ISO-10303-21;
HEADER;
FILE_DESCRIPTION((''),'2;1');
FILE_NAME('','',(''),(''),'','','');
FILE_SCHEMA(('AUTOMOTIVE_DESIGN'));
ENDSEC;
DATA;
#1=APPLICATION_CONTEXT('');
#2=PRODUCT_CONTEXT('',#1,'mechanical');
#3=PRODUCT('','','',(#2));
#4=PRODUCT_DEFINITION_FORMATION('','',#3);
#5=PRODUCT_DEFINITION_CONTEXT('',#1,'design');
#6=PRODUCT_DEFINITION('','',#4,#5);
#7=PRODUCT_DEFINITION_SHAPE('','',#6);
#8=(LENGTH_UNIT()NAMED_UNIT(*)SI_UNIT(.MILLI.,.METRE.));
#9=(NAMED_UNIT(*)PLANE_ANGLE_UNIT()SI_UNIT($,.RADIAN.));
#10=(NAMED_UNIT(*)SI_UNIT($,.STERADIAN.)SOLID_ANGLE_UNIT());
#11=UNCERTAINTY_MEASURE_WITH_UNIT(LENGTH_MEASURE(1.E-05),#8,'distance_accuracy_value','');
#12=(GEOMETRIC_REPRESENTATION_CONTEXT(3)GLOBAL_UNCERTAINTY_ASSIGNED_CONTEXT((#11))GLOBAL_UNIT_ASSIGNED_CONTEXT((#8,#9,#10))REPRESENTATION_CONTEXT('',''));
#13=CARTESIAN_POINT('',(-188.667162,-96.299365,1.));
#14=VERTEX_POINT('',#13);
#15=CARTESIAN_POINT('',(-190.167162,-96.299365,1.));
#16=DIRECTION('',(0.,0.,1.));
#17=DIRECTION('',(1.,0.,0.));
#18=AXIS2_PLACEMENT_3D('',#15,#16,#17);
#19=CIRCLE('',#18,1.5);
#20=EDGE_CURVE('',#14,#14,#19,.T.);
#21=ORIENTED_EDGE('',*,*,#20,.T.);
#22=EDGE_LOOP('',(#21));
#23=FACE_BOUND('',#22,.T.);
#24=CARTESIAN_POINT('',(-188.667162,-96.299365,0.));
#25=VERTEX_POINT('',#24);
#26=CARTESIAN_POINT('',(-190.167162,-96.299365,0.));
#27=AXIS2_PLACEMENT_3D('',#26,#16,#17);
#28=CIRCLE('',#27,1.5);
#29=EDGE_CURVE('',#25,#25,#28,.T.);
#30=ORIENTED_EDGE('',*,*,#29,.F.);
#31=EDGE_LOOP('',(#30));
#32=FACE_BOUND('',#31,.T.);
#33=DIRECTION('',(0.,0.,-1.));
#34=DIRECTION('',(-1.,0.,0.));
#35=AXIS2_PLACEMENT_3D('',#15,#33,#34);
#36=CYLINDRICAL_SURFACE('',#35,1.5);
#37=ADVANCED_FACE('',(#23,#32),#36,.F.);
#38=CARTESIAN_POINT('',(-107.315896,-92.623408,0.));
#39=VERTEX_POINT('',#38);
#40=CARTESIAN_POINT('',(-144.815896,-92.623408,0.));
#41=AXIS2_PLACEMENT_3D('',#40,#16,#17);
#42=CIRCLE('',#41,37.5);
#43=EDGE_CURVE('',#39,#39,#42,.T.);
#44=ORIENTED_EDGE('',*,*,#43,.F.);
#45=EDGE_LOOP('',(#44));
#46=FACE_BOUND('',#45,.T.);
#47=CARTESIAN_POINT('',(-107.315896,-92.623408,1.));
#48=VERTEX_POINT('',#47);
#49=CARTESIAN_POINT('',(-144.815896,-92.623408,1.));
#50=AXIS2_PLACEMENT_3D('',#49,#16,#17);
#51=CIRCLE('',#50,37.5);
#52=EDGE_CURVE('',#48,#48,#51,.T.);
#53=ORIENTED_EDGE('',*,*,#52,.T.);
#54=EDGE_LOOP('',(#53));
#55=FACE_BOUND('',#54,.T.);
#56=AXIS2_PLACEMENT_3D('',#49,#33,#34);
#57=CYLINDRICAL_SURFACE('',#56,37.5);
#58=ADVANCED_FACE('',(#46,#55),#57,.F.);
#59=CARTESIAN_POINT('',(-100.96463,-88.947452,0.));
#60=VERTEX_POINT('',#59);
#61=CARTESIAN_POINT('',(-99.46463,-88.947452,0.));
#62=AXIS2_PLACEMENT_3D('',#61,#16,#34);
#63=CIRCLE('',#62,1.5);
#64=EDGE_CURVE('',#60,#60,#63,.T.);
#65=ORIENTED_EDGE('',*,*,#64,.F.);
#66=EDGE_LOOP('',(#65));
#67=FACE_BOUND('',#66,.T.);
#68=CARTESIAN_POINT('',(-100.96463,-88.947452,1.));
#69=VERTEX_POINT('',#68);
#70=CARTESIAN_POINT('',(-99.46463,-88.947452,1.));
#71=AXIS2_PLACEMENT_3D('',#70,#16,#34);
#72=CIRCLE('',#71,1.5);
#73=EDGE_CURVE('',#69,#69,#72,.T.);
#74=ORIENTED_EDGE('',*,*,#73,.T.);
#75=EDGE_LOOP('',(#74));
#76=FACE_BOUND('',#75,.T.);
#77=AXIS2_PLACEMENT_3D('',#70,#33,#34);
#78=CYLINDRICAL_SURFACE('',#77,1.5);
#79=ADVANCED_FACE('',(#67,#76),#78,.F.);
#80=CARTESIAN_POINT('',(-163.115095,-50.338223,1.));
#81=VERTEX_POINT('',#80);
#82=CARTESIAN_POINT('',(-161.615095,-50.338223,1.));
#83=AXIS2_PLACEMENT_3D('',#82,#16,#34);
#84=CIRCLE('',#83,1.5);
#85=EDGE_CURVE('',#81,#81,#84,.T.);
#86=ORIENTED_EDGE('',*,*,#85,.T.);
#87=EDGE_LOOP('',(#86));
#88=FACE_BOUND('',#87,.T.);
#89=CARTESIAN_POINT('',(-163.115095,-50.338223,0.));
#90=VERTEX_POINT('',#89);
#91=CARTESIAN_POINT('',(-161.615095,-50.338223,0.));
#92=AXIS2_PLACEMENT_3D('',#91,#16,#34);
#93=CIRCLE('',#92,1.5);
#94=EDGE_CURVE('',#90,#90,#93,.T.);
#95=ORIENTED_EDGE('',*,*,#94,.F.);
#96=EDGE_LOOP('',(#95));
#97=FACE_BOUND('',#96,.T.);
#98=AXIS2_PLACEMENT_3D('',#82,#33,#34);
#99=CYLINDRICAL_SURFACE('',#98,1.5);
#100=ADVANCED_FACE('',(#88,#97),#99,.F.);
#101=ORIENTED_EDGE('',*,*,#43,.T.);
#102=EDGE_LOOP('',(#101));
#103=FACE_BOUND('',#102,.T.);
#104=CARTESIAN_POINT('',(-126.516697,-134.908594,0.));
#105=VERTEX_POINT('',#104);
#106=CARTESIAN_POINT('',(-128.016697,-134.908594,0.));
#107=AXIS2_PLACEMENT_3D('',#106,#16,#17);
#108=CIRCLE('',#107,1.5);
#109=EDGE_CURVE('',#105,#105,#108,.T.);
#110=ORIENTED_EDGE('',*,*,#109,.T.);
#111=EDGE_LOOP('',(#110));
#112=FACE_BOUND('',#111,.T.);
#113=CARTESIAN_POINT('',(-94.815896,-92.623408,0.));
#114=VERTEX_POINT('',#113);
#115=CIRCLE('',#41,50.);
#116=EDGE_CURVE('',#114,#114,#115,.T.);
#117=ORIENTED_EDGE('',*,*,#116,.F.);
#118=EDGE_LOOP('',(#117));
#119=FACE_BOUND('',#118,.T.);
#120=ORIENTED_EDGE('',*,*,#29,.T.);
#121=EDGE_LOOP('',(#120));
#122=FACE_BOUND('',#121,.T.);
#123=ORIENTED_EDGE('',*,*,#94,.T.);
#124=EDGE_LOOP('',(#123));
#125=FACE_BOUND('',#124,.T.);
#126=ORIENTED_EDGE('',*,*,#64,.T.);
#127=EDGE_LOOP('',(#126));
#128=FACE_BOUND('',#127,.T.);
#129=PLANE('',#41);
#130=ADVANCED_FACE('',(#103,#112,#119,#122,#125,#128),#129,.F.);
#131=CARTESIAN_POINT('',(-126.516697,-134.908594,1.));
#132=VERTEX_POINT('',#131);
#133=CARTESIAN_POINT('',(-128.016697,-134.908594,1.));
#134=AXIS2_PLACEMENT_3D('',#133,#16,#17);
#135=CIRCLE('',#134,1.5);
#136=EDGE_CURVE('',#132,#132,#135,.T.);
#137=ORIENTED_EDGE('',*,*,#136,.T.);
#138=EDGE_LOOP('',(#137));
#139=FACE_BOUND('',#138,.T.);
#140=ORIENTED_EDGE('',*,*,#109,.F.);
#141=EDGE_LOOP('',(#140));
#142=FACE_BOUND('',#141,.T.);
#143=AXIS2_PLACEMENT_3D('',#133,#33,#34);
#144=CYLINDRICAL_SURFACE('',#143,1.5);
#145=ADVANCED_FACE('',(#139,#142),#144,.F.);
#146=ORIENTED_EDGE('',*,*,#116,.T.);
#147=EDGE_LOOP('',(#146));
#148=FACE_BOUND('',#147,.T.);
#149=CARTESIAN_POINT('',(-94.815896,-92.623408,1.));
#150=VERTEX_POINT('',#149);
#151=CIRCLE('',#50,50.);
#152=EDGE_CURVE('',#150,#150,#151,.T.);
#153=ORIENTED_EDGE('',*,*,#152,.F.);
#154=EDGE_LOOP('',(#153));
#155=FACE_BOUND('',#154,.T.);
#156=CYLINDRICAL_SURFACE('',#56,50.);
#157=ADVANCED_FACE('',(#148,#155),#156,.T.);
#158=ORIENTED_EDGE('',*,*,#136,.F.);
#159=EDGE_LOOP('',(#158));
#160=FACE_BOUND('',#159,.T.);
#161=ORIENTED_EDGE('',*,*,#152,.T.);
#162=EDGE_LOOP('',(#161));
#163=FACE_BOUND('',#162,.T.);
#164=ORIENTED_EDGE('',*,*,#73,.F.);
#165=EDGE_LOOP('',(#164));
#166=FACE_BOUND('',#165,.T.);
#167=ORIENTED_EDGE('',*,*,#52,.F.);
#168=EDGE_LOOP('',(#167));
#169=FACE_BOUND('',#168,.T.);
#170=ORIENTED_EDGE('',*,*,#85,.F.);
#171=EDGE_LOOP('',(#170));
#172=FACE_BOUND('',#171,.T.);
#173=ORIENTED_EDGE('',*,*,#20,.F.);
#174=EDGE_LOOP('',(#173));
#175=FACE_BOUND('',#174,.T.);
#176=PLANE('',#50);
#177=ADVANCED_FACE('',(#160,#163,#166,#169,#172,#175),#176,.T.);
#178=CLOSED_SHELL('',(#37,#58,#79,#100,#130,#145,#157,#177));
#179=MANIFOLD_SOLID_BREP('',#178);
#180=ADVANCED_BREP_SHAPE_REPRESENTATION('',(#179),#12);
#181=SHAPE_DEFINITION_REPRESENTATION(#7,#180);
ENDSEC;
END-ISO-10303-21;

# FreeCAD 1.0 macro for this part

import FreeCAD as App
import Part
import Sketcher
from FreeCAD import Vector

doc = App.newDocument("Part")
body = doc.addObject("PartDesign::Body", "Body")

sketch1 = body.newObject("Sketcher::SketchObject", "Sketch")
sketch1.AttachmentSupport = (doc.getObject("XY_Plane"), [""])
sketch1.MapMode = "FlatFace"
sketch1.addGeometry([
    Part.Circle(Vector(-144.8, -92.6, 0), Vector(0, 0, 1), 50),
    Part.Circle(Vector(-190.2, -96.3, 0), Vector(0, 0, 1), 1.5),
    Part.Circle(Vector(-144.8, -92.6, 0), Vector(0, 0, 1), 37.5),
    Part.Circle(Vector(-128, -134.9, 0), Vector(0, 0, 1), 1.5),
    Part.Circle(Vector(-161.6, -50.3, 0), Vector(0, 0, 1), 1.5),
    Part.Circle(Vector(-99.5, -88.9, 0), Vector(0, 0, 1), 1.5),
], False)
sketch1.addConstraint([
    Sketcher.Constraint("Coincident", 2, 3, 0, 3),
    Sketcher.Constraint("Equal", 1, 3),
    Sketcher.Constraint("Equal", 3, 4),
    Sketcher.Constraint("Equal", 4, 5),
    Sketcher.Constraint("Diameter", 0, 100.0),
    Sketcher.Constraint("Diameter", 1, 3.0),
    Sketcher.Constraint("Diameter", 2, 75.0),
    Sketcher.Constraint("DistanceX", 0, 3, 3, 3, 16.799199),
    Sketcher.Constraint("DistanceX", 4, 3, 0, 3, 16.799199),
    Sketcher.Constraint("DistanceY", 0, 3, -1, 1, 92.623408),
    Sketcher.Constraint("DistanceX", 1, 3, -1, 1, 190.167162),
    Sketcher.Constraint("DistanceX", 5, 3, -1, 1, 99.46463),
    Sketcher.Constraint("DistanceY", 5, 3, -1, 1, 88.947452),
    Sketcher.Constraint("DistanceY", 3, 3, 1, 3, 38.609229),
    Sketcher.Constraint("DistanceY", 3, 3, 4, 3, 84.570371),
    Sketcher.Constraint("DistanceY", 5, 3, 4, 3, 38.609229),
    Sketcher.Constraint("DistanceX", 0, 3, -1, 1, 144.815896),
])
pad1 = body.newObject("PartDesign::Pad", "Pad")
pad1.Profile = sketch1
pad1.Length = 1

doc.recompute()
